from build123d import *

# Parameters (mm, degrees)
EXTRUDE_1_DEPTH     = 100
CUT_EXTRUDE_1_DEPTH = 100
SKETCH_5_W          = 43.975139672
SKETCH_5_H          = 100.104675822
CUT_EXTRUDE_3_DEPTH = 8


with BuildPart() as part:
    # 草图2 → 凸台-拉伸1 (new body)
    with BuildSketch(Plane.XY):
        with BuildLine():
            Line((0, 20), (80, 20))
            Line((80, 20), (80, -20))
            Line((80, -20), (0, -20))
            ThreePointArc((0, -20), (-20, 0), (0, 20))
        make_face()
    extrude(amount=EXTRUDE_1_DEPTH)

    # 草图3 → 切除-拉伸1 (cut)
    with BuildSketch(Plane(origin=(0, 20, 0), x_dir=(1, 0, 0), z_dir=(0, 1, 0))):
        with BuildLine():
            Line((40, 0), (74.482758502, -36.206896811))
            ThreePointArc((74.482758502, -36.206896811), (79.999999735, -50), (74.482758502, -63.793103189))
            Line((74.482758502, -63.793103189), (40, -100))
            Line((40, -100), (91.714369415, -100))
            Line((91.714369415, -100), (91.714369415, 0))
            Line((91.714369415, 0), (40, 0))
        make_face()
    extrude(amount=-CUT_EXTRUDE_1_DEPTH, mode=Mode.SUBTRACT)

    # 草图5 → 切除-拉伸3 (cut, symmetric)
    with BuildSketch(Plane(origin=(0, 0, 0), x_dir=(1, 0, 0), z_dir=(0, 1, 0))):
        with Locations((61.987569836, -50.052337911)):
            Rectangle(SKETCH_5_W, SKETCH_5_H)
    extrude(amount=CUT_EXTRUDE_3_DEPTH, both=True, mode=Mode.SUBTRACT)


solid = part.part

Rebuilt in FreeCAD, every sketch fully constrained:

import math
import FreeCAD as App
import Part
import Sketcher
from FreeCAD import Vector

doc = App.newDocument("Part")
body = doc.addObject("PartDesign::Body", "Body")

# Sketch on XY plane
sketch1 = doc.addObject("Sketcher::SketchObject", "Sketch")
body.addObject(sketch1)
sketch1.AttachmentSupport = (doc.XY_Plane, [""])
sketch1.MapMode = "FlatFace"
sketch1.addGeometry(Part.LineSegment(Vector(80, 20, 0), Vector(0, 20, 0)), False)
sketch1.addGeometry(Part.ArcOfCircle(Part.Circle(Vector(0, 0, 0), Vector(0, 0, 1), 20), math.radians(90), math.radians(270)), False)
sketch1.addGeometry(Part.LineSegment(Vector(0, -20, 0), Vector(80, -20, 0)), False)
sketch1.addGeometry(Part.LineSegment(Vector(80, -20, 0), Vector(80, 20, 0)), False)
sketch1.addConstraint(Sketcher.Constraint("Tangent", 0, 2, 1, 1))
sketch1.addConstraint(Sketcher.Constraint("Tangent", 1, 2, 2, 1))
sketch1.addConstraint(Sketcher.Constraint("Coincident", 2, 2, 3, 1))
sketch1.addConstraint(Sketcher.Constraint("Coincident", 3, 2, 0, 1))
sketch1.addConstraint(Sketcher.Constraint("Horizontal", 0))
sketch1.addConstraint(Sketcher.Constraint("Horizontal", 2))
sketch1.addConstraint(Sketcher.Constraint("Vertical", 3))
sketch1.addConstraint(Sketcher.Constraint("Coincident", 1, 3, -1, 1))
sketch1.addConstraint(Sketcher.Constraint("Radius", 1, 20.0))
sketch1.addConstraint(Sketcher.Constraint("DistanceX", 0, 2, 0, 1, 80.0))
pad1 = doc.addObject("PartDesign::Pad", "Pad")
body.addObject(pad1)
pad1.Profile = sketch1
pad1.Length = 100

# Sketch on XZ plane
sketch2 = doc.addObject("Sketcher::SketchObject", "Sketch001")
body.addObject(sketch2)
sketch2.AttachmentSupport = (doc.XZ_Plane, [""])
sketch2.MapMode = "FlatFace"
sketch2.AttachmentOffset = App.Placement(Vector(0, 0, -20), App.Rotation())
sketch2.addGeometry(Part.LineSegment(Vector(40, 0, 0), Vector(74.482759, 36.206897, 0)), False)
sketch2.addGeometry(Part.ArcOfCircle(Part.Circle(Vector(60, 50, 0), Vector(0, 0, 1), 20), math.radians(-43.602819), math.radians(43.602819)), False)
sketch2.addGeometry(Part.LineSegment(Vector(74.482759, 63.793103, 0), Vector(40, 100, 0)), False)
sketch2.addGeometry(Part.LineSegment(Vector(40, 100, 0), Vector(91.714369, 100, 0)), False)
sketch2.addGeometry(Part.LineSegment(Vector(91.714369, 100, 0), Vector(91.714369, 0, 0)), False)
sketch2.addGeometry(Part.LineSegment(Vector(91.714369, 0, 0), Vector(40, 0, 0)), False)
sketch2.addConstraint(Sketcher.Constraint("Tangent", 0, 2, 1, 1))
sketch2.addConstraint(Sketcher.Constraint("Tangent", 1, 2, 2, 1))
sketch2.addConstraint(Sketcher.Constraint("Coincident", 2, 2, 3, 1))
sketch2.addConstraint(Sketcher.Constraint("Coincident", 3, 2, 4, 1))
sketch2.addConstraint(Sketcher.Constraint("Coincident", 4, 2, 5, 1))
sketch2.addConstraint(Sketcher.Constraint("Coincident", 5, 2, 0, 1))
sketch2.addConstraint(Sketcher.Constraint("Horizontal", 3))
sketch2.addConstraint(Sketcher.Constraint("Vertical", 4))
sketch2.addConstraint(Sketcher.Constraint("Horizontal", 5))
sketch2.addConstraint(Sketcher.Constraint("PointOnObject", 4, 2, -1))
sketch2.addConstraint(Sketcher.Constraint("Vertical", 0, 2, 1, 2))
sketch2.addConstraint(Sketcher.Constraint("Vertical", 2, 2, 5, 2))
sketch2.addConstraint(Sketcher.Constraint("Radius", 1, 20.0))
sketch2.addConstraint(Sketcher.Constraint("DistanceY", 4, 2, 4, 1, 100.0))
sketch2.addConstraint(Sketcher.Constraint("Distance", 0, 50.0))
sketch2.addConstraint(Sketcher.Constraint("DistanceX", -1, 1, 1, 3, 60.0))
sketch2.addConstraint(Sketcher.Constraint("DistanceX", 3, 1, 3, 2, 51.714369))
pocket1 = doc.addObject("PartDesign::Pocket", "Pocket")
body.addObject(pocket1)
pocket1.Profile = sketch2
pocket1.Length = 100
pocket1.Reversed = True

# Sketch on XZ plane
sketch3 = doc.addObject("Sketcher::SketchObject", "Sketch002")
body.addObject(sketch3)
sketch3.AttachmentSupport = (doc.XZ_Plane, [""])
sketch3.MapMode = "FlatFace"
sketch3.addGeometry(Part.LineSegment(Vector(40, 0, 0), Vector(40, 100.104676, 0)), False)
sketch3.addGeometry(Part.LineSegment(Vector(40, 100.104676, 0), Vector(83.97514, 100.104676, 0)), False)
sketch3.addGeometry(Part.LineSegment(Vector(83.97514, 100.104676, 0), Vector(83.97514, 0, 0)), False)
sketch3.addGeometry(Part.LineSegment(Vector(83.97514, 0, 0), Vector(40, 0, 0)), False)
sketch3.addConstraint(Sketcher.Constraint("Coincident", 0, 2, 1, 1))
sketch3.addConstraint(Sketcher.Constraint("Coincident", 1, 2, 2, 1))
sketch3.addConstraint(Sketcher.Constraint("Coincident", 2, 2, 3, 1))
sketch3.addConstraint(Sketcher.Constraint("Coincident", 3, 2, 0, 1))
sketch3.addConstraint(Sketcher.Constraint("Vertical", 0))
sketch3.addConstraint(Sketcher.Constraint("Horizontal", 1))
sketch3.addConstraint(Sketcher.Constraint("Vertical", 2))
sketch3.addConstraint(Sketcher.Constraint("Horizontal", 3))
sketch3.addConstraint(Sketcher.Constraint("PointOnObject", 2, 2, -1))
sketch3.addConstraint(Sketcher.Constraint("DistanceX", -1, 1, 0, 2, 40.0))
sketch3.addConstraint(Sketcher.Constraint("DistanceX", 1, 1, 1, 2, 43.97514))
sketch3.addConstraint(Sketcher.Constraint("DistanceY", 0, 1, 0, 2, 100.104676))
pocket2 = doc.addObject("PartDesign::Pocket", "Pocket001")
body.addObject(pocket2)
pocket2.Profile = sketch3
pocket2.Length = 16
pocket2.Midplane = True

doc.recompute()
